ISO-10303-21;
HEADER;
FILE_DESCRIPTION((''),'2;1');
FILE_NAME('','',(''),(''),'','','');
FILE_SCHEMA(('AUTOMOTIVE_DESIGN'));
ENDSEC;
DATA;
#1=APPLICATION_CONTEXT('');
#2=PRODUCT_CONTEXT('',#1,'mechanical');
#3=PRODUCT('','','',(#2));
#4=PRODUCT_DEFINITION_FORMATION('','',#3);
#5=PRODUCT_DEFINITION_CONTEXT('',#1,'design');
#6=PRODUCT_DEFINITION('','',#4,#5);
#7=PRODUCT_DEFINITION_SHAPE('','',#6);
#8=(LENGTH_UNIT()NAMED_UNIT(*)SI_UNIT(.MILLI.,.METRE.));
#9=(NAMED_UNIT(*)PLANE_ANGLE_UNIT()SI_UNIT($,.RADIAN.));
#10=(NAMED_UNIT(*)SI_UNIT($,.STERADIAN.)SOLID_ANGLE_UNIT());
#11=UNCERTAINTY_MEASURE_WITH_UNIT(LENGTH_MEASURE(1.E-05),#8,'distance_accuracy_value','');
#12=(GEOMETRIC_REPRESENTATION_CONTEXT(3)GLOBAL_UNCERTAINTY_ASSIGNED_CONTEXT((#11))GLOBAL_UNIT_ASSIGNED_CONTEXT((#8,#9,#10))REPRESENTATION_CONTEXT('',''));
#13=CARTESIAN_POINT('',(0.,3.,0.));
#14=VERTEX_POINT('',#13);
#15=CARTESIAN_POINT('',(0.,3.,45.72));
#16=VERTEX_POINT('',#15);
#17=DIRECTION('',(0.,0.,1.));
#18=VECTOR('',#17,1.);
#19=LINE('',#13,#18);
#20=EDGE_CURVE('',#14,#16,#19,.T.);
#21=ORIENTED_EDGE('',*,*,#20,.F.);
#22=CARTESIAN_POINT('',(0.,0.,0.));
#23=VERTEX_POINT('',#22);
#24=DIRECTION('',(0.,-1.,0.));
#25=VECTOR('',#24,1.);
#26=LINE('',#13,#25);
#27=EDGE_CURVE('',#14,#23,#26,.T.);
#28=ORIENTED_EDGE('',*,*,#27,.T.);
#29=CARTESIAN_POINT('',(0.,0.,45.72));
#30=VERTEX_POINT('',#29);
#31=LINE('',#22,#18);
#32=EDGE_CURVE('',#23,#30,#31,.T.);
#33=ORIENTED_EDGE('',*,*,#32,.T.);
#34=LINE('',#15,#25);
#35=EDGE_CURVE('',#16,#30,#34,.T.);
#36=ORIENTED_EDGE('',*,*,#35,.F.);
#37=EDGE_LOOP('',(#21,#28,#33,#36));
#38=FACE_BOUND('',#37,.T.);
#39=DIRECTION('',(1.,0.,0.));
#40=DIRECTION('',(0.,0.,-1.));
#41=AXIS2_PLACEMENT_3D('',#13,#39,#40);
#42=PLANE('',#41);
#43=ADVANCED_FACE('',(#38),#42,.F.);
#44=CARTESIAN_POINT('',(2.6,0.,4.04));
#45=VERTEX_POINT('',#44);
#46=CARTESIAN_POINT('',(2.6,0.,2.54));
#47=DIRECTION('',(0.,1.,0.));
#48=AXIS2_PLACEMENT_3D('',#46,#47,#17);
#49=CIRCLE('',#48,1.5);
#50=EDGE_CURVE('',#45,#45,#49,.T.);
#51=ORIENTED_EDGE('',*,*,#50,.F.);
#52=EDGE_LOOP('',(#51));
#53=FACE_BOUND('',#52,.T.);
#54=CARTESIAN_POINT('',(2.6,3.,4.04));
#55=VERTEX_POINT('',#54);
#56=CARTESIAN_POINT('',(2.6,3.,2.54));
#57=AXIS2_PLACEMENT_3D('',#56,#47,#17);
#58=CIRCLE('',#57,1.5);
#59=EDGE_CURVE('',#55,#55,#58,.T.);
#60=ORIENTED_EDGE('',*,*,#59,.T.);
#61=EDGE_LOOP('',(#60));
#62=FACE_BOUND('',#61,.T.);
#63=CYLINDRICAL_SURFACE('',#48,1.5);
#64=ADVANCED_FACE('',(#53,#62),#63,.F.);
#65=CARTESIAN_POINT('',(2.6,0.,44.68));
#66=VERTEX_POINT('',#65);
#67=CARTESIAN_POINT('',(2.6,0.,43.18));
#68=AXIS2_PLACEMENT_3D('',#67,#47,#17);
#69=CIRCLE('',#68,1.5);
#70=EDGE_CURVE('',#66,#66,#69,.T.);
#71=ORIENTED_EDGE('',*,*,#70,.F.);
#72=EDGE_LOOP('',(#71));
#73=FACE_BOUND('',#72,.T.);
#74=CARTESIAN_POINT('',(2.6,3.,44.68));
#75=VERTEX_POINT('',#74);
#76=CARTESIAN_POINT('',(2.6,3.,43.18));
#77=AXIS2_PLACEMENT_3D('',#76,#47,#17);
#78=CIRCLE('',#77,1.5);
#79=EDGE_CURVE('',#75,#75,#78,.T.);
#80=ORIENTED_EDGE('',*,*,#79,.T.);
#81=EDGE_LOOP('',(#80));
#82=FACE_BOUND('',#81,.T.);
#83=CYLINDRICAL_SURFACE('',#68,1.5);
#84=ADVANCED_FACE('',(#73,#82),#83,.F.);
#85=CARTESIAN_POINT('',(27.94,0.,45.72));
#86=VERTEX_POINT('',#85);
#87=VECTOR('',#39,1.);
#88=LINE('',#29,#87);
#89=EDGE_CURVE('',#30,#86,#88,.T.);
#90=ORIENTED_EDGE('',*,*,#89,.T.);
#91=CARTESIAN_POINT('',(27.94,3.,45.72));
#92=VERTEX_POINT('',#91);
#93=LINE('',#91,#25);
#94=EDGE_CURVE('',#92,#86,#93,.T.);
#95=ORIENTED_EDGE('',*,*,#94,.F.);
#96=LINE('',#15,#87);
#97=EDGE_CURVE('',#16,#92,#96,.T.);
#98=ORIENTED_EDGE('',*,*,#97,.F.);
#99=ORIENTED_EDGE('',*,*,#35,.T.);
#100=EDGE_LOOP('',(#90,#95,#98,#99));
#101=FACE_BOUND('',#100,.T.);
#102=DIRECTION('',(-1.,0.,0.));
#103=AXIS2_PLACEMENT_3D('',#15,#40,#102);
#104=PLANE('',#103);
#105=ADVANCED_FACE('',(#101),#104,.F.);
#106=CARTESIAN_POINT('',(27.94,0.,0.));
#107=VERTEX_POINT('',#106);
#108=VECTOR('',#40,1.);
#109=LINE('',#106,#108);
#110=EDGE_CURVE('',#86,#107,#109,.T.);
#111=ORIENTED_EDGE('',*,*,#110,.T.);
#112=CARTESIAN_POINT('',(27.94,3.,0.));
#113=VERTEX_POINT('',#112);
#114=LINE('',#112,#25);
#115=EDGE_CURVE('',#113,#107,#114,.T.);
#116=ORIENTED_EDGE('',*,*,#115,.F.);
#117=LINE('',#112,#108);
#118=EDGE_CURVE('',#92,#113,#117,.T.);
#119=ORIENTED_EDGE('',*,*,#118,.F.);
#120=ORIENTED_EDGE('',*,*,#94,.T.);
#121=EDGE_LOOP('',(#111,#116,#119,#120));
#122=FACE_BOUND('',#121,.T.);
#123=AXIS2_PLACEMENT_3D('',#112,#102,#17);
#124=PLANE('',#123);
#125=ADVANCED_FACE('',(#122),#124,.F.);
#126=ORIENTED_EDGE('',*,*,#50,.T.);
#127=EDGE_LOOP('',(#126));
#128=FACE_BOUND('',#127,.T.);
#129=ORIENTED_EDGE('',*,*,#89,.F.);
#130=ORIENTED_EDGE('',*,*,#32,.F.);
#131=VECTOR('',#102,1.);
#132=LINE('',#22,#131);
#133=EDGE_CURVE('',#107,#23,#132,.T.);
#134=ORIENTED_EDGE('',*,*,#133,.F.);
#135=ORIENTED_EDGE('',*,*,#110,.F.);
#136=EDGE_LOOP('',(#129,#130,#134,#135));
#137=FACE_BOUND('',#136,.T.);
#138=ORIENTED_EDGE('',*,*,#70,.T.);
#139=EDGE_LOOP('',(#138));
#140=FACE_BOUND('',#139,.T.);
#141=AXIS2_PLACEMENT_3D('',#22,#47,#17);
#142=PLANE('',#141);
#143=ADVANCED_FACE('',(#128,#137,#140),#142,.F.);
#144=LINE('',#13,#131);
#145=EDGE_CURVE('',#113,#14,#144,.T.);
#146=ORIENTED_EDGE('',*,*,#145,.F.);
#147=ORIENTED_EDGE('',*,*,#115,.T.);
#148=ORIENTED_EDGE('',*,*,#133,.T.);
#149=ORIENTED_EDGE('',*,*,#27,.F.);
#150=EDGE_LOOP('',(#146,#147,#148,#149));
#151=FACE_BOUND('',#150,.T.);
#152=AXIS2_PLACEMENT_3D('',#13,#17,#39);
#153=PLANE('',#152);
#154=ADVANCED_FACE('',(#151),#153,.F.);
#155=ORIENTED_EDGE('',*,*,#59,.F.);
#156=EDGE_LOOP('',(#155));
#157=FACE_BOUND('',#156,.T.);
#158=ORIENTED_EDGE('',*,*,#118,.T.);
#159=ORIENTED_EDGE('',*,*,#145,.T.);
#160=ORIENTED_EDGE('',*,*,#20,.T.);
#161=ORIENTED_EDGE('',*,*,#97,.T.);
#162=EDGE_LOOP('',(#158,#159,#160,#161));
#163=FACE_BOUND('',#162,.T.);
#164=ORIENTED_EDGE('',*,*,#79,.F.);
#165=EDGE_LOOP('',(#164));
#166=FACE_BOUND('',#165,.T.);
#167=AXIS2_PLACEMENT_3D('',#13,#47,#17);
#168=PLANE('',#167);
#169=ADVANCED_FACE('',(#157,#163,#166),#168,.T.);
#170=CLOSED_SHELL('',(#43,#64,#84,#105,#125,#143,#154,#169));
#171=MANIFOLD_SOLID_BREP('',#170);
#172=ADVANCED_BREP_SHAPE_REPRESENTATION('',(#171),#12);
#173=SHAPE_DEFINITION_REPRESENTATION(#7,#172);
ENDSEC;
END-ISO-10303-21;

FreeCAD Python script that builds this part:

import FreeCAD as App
import Part
import Sketcher

V = App.Vector
Q = App.Units.Quantity

doc = App.newDocument("Part")
body = doc.addObject("PartDesign::Body", "Body")

# Sketch on XZ plane
sketch1 = body.newObject("Sketcher::SketchObject", "Sketch")
sketch1.AttachmentSupport = (doc.getObject("XZ_Plane"), [""])
sketch1.MapMode = "FlatFace"
sketch1.addGeometry(Part.LineSegment(V(0, 0, 0), V(0, 46, 0)), False)
sketch1.addGeometry(Part.LineSegment(V(0, 46, 0), V(28, 46, 0)), False)
sketch1.addGeometry(Part.LineSegment(V(28, 46, 0), V(28, 0, 0)), False)
sketch1.addGeometry(Part.LineSegment(V(28, 0, 0), V(0, 0, 0)), False)
sketch1.addConstraint(Sketcher.Constraint("Coincident", 0, 2, 1, 1))
sketch1.addConstraint(Sketcher.Constraint("Coincident", 1, 2, 2, 1))
sketch1.addConstraint(Sketcher.Constraint("Coincident", 2, 2, 3, 1))
sketch1.addConstraint(Sketcher.Constraint("Coincident", 3, 2, 0, 1))
sketch1.addConstraint(Sketcher.Constraint("Vertical", 0))
sketch1.addConstraint(Sketcher.Constraint("Horizontal", 1))
sketch1.addConstraint(Sketcher.Constraint("Vertical", 2))
sketch1.addConstraint(Sketcher.Constraint("Horizontal", 3))
sketch1.addConstraint(Sketcher.Constraint("Coincident", 3, 2, -1, 1))
sketch1.addConstraint(Sketcher.Constraint("DistanceX", 1, 1, 1, 2, Q("1.1 in")))
sketch1.addConstraint(Sketcher.Constraint("DistanceY", 0, 1, 0, 2, Q("1.8 in")))
pad1 = body.newObject("PartDesign::Pad", "Pad")
pad1.Profile = sketch1
pad1.Length = 3
pad1.Reversed = True

# Sketch on XZ plane
sketch2 = body.newObject("Sketcher::SketchObject", "Sketch001")
sketch2.AttachmentSupport = (doc.getObject("XZ_Plane"), [""])
sketch2.MapMode = "FlatFace"
sketch2.AttachmentOffset = App.Placement(V(0, 0, -3), App.Rotation())
sketch2.addGeometry(Part.Circle(V(2.6, 2.5, 0), V(0, 0, 1), 1.5), False)
sketch2.addGeometry(Part.Circle(V(2.6, 43.2, 0), V(0, 0, 1), 1.5), False)
sketch2.addConstraint(Sketcher.Constraint("Equal", 0, 1))
sketch2.addConstraint(Sketcher.Constraint("Vertical", 0, 3, 1, 3))
sketch2.addConstraint(Sketcher.Constraint("DistanceY", -1, 1, 0, 3, Q("0.1 in")))
sketch2.addConstraint(Sketcher.Constraint("DistanceY", -1, 1, 1, 3, Q("1.7 in")))
sketch2.addConstraint(Sketcher.Constraint("Diameter", 0, Q("3 mm")))
sketch2.addConstraint(Sketcher.Constraint("DistanceX", -1, 1, 0, 3, Q("2.6 mm")))
pocket1 = body.newObject("PartDesign::Pocket", "Pocket")
pocket1.Profile = sketch2
pocket1.Type = "ThroughAll"
pocket1.Reversed = True

doc.recompute()
